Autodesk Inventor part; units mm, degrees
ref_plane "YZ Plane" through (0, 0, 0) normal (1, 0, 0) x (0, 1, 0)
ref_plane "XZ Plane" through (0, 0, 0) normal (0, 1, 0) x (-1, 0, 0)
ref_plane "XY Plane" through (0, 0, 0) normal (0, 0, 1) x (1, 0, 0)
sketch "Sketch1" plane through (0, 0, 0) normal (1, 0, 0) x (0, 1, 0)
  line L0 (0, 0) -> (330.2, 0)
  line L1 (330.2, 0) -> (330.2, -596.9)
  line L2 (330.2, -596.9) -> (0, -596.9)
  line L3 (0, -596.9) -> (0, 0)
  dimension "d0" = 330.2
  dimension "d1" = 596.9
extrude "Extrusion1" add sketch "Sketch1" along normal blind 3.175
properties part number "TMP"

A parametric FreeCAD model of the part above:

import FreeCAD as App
import Part
import Sketcher
Q = App.Units.Quantity

doc = App.newDocument("Part")
body = doc.addObject("PartDesign::Body", "Body")

sketch1 = doc.addObject("Sketcher::SketchObject", "Sketch")
body.addObject(sketch1)
sketch1.AttachmentSupport = (doc.YZ_Plane, [""])
sketch1.MapMode = "FlatFace"
sketch1.addGeometry(Part.LineSegment(App.Vector(330, 0, 0), App.Vector(0, 0, 0)), False)
sketch1.addGeometry(Part.LineSegment(App.Vector(0, 0, 0), App.Vector(0, -597, 0)), False)
sketch1.addGeometry(Part.LineSegment(App.Vector(0, -597, 0), App.Vector(330, -597, 0)), False)
sketch1.addGeometry(Part.LineSegment(App.Vector(330, -597, 0), App.Vector(330, 0, 0)), False)
sketch1.addConstraint(Sketcher.Constraint("Coincident", 0, 2, 1, 1))
sketch1.addConstraint(Sketcher.Constraint("Coincident", 1, 2, 2, 1))
sketch1.addConstraint(Sketcher.Constraint("Coincident", 2, 2, 3, 1))
sketch1.addConstraint(Sketcher.Constraint("Coincident", 3, 2, 0, 1))
sketch1.addConstraint(Sketcher.Constraint("Horizontal", 0))
sketch1.addConstraint(Sketcher.Constraint("Vertical", 1))
sketch1.addConstraint(Sketcher.Constraint("Horizontal", 2))
sketch1.addConstraint(Sketcher.Constraint("Vertical", 3))
sketch1.addConstraint(Sketcher.Constraint("Coincident", 0, 2, -1, 1))
sketch1.addConstraint(Sketcher.Constraint("DistanceX", 0, 2, 0, 1, Q("13 in")))
sketch1.addConstraint(Sketcher.Constraint("DistanceY", 1, 2, 1, 1, Q("23.5 in")))
pad1 = doc.addObject("PartDesign::Pad", "Pad")
body.addObject(pad1)
pad1.Profile = sketch1
pad1.Length = Q("0.125 in")

doc.recompute()
